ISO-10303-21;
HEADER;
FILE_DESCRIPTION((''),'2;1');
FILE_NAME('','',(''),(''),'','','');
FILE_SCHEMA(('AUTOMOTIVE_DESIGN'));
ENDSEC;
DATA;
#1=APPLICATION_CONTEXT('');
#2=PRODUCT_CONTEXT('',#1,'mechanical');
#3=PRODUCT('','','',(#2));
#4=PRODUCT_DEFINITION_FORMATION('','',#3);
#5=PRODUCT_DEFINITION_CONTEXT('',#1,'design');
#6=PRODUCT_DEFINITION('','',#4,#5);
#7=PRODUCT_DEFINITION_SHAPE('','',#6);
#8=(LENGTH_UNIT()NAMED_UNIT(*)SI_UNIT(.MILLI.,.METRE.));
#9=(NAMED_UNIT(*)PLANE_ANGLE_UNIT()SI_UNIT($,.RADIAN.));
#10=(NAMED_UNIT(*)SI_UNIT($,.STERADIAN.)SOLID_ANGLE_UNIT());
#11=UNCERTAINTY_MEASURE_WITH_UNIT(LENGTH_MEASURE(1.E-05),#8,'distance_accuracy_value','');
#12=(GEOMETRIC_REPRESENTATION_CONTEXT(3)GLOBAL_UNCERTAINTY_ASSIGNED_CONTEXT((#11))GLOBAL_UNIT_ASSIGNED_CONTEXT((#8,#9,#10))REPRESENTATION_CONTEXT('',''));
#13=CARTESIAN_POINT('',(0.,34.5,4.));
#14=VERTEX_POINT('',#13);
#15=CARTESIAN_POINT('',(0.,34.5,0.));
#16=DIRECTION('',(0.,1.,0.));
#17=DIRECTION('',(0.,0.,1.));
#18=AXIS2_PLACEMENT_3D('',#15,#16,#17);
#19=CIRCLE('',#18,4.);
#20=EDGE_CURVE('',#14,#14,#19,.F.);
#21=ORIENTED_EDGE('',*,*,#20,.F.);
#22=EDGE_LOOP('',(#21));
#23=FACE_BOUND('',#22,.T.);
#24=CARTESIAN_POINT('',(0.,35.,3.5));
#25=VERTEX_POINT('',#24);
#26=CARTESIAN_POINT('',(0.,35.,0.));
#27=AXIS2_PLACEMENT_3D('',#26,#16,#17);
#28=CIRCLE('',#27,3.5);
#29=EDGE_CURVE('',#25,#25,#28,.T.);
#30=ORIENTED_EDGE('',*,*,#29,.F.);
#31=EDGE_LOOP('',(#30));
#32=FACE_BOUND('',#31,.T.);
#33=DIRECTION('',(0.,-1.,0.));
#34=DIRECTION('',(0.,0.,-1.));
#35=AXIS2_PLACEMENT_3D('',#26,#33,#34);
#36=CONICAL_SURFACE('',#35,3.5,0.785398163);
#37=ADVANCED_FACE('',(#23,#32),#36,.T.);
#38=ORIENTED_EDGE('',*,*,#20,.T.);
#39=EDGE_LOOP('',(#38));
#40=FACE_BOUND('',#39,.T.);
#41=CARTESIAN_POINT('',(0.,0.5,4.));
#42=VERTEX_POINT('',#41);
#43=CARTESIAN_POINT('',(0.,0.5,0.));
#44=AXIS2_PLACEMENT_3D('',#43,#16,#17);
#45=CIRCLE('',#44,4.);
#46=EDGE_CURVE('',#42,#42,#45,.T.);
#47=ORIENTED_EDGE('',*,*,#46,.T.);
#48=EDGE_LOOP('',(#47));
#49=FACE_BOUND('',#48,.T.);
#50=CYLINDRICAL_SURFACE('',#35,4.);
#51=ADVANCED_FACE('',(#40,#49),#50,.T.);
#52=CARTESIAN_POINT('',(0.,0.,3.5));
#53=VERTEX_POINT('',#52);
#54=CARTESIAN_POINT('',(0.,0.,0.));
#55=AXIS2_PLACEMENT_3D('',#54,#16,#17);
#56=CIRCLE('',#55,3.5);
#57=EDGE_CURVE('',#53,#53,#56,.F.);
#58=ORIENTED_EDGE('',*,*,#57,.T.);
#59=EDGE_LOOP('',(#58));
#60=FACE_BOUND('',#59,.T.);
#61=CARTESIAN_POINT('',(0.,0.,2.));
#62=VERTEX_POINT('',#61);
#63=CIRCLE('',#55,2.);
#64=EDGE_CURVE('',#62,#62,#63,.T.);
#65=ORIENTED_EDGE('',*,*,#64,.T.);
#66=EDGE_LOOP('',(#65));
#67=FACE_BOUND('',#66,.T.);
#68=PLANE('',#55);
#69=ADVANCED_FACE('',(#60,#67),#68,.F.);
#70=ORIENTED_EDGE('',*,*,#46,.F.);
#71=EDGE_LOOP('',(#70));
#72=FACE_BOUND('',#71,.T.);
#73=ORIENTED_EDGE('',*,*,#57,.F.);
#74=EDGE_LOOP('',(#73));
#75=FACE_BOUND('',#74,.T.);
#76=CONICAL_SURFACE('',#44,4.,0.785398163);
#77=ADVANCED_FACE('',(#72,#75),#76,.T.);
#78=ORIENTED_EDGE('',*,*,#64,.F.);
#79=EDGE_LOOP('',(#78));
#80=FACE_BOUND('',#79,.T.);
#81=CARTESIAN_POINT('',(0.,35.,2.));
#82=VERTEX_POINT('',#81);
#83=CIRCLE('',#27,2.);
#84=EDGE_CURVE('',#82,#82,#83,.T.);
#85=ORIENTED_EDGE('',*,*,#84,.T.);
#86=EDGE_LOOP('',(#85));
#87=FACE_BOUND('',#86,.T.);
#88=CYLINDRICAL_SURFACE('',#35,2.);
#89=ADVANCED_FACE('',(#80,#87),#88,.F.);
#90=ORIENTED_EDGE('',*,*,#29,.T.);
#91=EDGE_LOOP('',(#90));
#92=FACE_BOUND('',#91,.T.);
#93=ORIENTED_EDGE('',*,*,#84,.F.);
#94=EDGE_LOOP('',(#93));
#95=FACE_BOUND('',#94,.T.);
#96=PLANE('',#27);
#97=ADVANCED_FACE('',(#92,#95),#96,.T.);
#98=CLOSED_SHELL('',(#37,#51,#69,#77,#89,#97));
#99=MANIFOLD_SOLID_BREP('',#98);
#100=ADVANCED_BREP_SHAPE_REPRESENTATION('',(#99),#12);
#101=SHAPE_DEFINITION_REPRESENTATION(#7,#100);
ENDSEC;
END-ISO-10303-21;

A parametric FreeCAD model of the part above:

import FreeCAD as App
import Part
import Sketcher
from FreeCAD import Vector
Q = App.Units.Quantity


def edges_at(feature, points):
    """Names of the edges that pass closest to the given points."""
    edges = feature.Shape.Edges
    near = lambda p: min(range(len(edges)), key=lambda i: edges[i].distToShape(Part.Vertex(*p))[0])
    return sorted({f"Edge{near(p) + 1}" for p in points})

doc = App.newDocument("Part")
params = doc.addObject("Spreadsheet::Sheet", "Params")
for row, (alias, value) in enumerate([
    ("sketch1_diameter", "8 mm"),
    ("sketch1_diameter2", "4 mm"),
    ("pad1_length", "35 mm"),
    ("chamfer_size", "0.5 mm"),
], start=1):
    params.set(f"A{row}", alias)
    params.set(f"B{row}", "=" + value)
    params.setAlias(f"B{row}", alias)

body = doc.addObject("PartDesign::Body", "Body")

# Sketch on XZ plane
sketch1 = body.newObject("Sketcher::SketchObject", "Sketch")
sketch1.AttachmentSupport = (doc.getObject("XZ_Plane"), [""])
sketch1.MapMode = "FlatFace"
sketch1.addGeometry(Part.Circle(Vector(0, 0, 0), Vector(0, 0, 1), 4), False)
sketch1.addGeometry(Part.Circle(Vector(0, 0, 0), Vector(0, 0, 1), 2), False)
sketch1.addConstraint(Sketcher.Constraint("Coincident", 0, 3, -1, 1))
sketch1.addConstraint(Sketcher.Constraint("Coincident", 1, 3, -1, 1))
sketch1.addConstraint(Sketcher.Constraint("Diameter", 0, Q("8 mm")))
sketch1.addConstraint(Sketcher.Constraint("Diameter", 1, Q("4 mm")))
sketch1.setExpression("Constraints[2]", "Params.sketch1_diameter")
sketch1.setExpression("Constraints[3]", "Params.sketch1_diameter2")
pad1 = body.newObject("PartDesign::Pad", "Pad")
pad1.Profile = sketch1
pad1.setExpression("Length", "Params.pad1_length")
pad1.Reversed = True
doc.recompute()

chamfer = body.newObject("PartDesign::Chamfer", "Chamfer")
chamfer.Base = (pad1, edges_at(pad1, [(0, 0, -4), (0, 35, -4)]))
chamfer.setExpression("Size", "Params.chamfer_size")

doc.recompute()
